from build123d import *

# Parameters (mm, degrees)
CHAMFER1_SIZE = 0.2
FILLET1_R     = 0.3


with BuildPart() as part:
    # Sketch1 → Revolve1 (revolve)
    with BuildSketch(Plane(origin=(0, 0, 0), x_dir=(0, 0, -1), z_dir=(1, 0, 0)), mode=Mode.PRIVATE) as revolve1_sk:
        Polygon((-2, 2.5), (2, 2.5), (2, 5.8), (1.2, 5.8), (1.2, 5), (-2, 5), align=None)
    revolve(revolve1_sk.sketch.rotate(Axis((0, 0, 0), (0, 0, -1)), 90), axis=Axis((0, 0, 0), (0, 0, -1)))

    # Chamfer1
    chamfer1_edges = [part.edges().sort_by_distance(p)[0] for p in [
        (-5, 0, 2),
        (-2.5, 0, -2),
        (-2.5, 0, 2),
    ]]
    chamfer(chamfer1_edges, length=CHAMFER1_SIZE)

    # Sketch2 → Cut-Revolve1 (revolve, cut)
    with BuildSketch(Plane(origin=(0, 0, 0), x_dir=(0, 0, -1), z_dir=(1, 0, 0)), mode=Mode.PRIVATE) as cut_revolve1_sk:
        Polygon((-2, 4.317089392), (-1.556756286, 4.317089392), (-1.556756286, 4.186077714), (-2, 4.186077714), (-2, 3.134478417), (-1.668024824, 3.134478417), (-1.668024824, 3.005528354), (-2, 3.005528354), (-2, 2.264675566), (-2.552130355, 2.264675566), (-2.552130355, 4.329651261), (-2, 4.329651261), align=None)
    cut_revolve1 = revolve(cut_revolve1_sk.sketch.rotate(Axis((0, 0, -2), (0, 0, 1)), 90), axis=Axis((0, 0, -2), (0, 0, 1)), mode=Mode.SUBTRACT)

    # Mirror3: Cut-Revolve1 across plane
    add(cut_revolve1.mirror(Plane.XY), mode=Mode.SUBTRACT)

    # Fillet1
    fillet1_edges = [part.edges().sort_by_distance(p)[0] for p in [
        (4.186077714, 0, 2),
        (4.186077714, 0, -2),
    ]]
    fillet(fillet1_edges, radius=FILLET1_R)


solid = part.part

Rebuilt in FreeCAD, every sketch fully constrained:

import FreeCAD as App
import Part
import Sketcher
from FreeCAD import Vector


def edges_at(feature, points):
    """Names of the edges that pass closest to the given points."""
    edges = feature.Shape.Edges
    near = lambda p: min(range(len(edges)), key=lambda i: edges[i].distToShape(Part.Vertex(*p))[0])
    return sorted({f"Edge{near(p) + 1}" for p in points})

doc = App.newDocument("Part")
params = doc.addObject("Spreadsheet::Sheet", "Params")
for row, (alias, value) in enumerate([
    ("sketch1_height", "4 mm"),
    ("sketch1_width", "3.3 mm"),
    ("sketch1_width2", "0.8 mm"),
    ("revolution_angle", "360 deg"),
    ("chamfer_size", "0.2 mm"),
    ("groove_angle", "360 deg"),
    ("fillet_radius", "0.3 mm"),
], start=1):
    params.set(f"A{row}", alias)
    params.set(f"B{row}", "=" + value)
    params.setAlias(f"B{row}", alias)

body = doc.addObject("PartDesign::Body", "Body")

sketch1 = body.newObject("Sketcher::SketchObject", "Sketch")
sketch1.AttachmentSupport = (doc.getObject("YZ_Plane"), [""])
sketch1.MapMode = "FlatFace"
sketch1.addGeometry(Part.LineSegment(Vector(2.5, 2, 0), Vector(2.5, -2, 0)), False)
sketch1.addGeometry(Part.LineSegment(Vector(2.5, -2, 0), Vector(5.8, -2, 0)), False)
sketch1.addGeometry(Part.LineSegment(Vector(5.8, -2, 0), Vector(5.8, -1.2, 0)), False)
sketch1.addGeometry(Part.LineSegment(Vector(5.8, -1.2, 0), Vector(5, -1.2, 0)), False)
sketch1.addGeometry(Part.LineSegment(Vector(5, -1.2, 0), Vector(5, 2, 0)), False)
sketch1.addGeometry(Part.LineSegment(Vector(5, 2, 0), Vector(2.5, 2, 0)), False)
sketch1.addConstraint(Sketcher.Constraint("Coincident", 0, 2, 1, 1))
sketch1.addConstraint(Sketcher.Constraint("Coincident", 1, 2, 2, 1))
sketch1.addConstraint(Sketcher.Constraint("Coincident", 2, 2, 3, 1))
sketch1.addConstraint(Sketcher.Constraint("Coincident", 3, 2, 4, 1))
sketch1.addConstraint(Sketcher.Constraint("Coincident", 4, 2, 5, 1))
sketch1.addConstraint(Sketcher.Constraint("Coincident", 5, 2, 0, 1))
sketch1.addConstraint(Sketcher.Constraint("Vertical", 0))
sketch1.addConstraint(Sketcher.Constraint("Horizontal", 1))
sketch1.addConstraint(Sketcher.Constraint("Vertical", 2))
sketch1.addConstraint(Sketcher.Constraint("Horizontal", 3))
sketch1.addConstraint(Sketcher.Constraint("Vertical", 4))
sketch1.addConstraint(Sketcher.Constraint("Horizontal", 5))
sketch1.addConstraint(Sketcher.Constraint("Equal", 3, 2))
sketch1.addConstraint(Sketcher.Constraint("DistanceY", 0, 2, 0, 1, 4.0))
sketch1.addConstraint(Sketcher.Constraint("DistanceX", 1, 1, 1, 2, 3.3))
sketch1.addConstraint(Sketcher.Constraint("DistanceX", 3, 2, 3, 1, 0.8))
sketch1.addConstraint(Sketcher.Constraint("DistanceY", 0, 2, -1, 1, 2.0))
sketch1.addConstraint(Sketcher.Constraint("DistanceX", -1, 1, 3, 2, 5.0))
sketch1.setExpression("Constraints[13]", "Params.sketch1_height")
sketch1.setExpression("Constraints[14]", "Params.sketch1_width")
sketch1.setExpression("Constraints[15]", "Params.sketch1_width2")
revolution = body.newObject("PartDesign::Revolution", "Revolution")
revolution.Profile = sketch1
revolution.ReferenceAxis = (sketch1, ["V_Axis"])
revolution.setExpression("Angle", "Params.revolution_angle")
doc.recompute()

chamfer = body.newObject("PartDesign::Chamfer", "Chamfer")
chamfer.Base = (revolution, edges_at(revolution, [(-5, 0, 2), (-2.5, 0, -2), (-2.5, 0, 2)]))
chamfer.setExpression("Size", "Params.chamfer_size")

sketch2 = body.newObject("Sketcher::SketchObject", "Sketch001")
sketch2.AttachmentSupport = (doc.getObject("YZ_Plane"), [""])
sketch2.MapMode = "FlatFace"
sketch2.addGeometry(Part.LineSegment(Vector(4.317, 1.557, 0), Vector(4.317, 2, 0)), False)
sketch2.addGeometry(Part.LineSegment(Vector(4.317, 2, 0), Vector(4.33, 2, 0)), False)
sketch2.addGeometry(Part.LineSegment(Vector(4.33, 2, 0), Vector(4.33, 2.552, 0)), False)
sketch2.addGeometry(Part.LineSegment(Vector(4.33, 2.552, 0), Vector(2.265, 2.552, 0)), False)
sketch2.addGeometry(Part.LineSegment(Vector(2.265, 2.552, 0), Vector(2.265, 2, 0)), False)
sketch2.addGeometry(Part.LineSegment(Vector(2.265, 2, 0), Vector(3.006, 2, 0)), False)
sketch2.addGeometry(Part.LineSegment(Vector(3.006, 2, 0), Vector(3.006, 1.668, 0)), False)
sketch2.addGeometry(Part.LineSegment(Vector(3.006, 1.668, 0), Vector(3.134, 1.668, 0)), False)
sketch2.addGeometry(Part.LineSegment(Vector(3.134, 1.668, 0), Vector(3.134, 2, 0)), False)
sketch2.addGeometry(Part.LineSegment(Vector(3.134, 2, 0), Vector(4.186, 2, 0)), False)
sketch2.addGeometry(Part.LineSegment(Vector(4.186, 2, 0), Vector(4.186, 1.557, 0)), False)
sketch2.addGeometry(Part.LineSegment(Vector(4.186, 1.557, 0), Vector(4.317, 1.557, 0)), False)
sketch2.addConstraint(Sketcher.Constraint("Coincident", 0, 2, 1, 1))
sketch2.addConstraint(Sketcher.Constraint("Coincident", 1, 2, 2, 1))
sketch2.addConstraint(Sketcher.Constraint("Coincident", 2, 2, 3, 1))
sketch2.addConstraint(Sketcher.Constraint("Coincident", 3, 2, 4, 1))
sketch2.addConstraint(Sketcher.Constraint("Coincident", 4, 2, 5, 1))
sketch2.addConstraint(Sketcher.Constraint("Coincident", 5, 2, 6, 1))
sketch2.addConstraint(Sketcher.Constraint("Coincident", 6, 2, 7, 1))
sketch2.addConstraint(Sketcher.Constraint("Coincident", 7, 2, 8, 1))
sketch2.addConstraint(Sketcher.Constraint("Coincident", 8, 2, 9, 1))
sketch2.addConstraint(Sketcher.Constraint("Coincident", 9, 2, 10, 1))
sketch2.addConstraint(Sketcher.Constraint("Coincident", 10, 2, 11, 1))
sketch2.addConstraint(Sketcher.Constraint("Coincident", 11, 2, 0, 1))
sketch2.addConstraint(Sketcher.Constraint("Vertical", 0))
sketch2.addConstraint(Sketcher.Constraint("Horizontal", 1))
sketch2.addConstraint(Sketcher.Constraint("Vertical", 2))
sketch2.addConstraint(Sketcher.Constraint("Horizontal", 3))
sketch2.addConstraint(Sketcher.Constraint("Vertical", 4))
sketch2.addConstraint(Sketcher.Constraint("Horizontal", 5))
sketch2.addConstraint(Sketcher.Constraint("Vertical", 6))
sketch2.addConstraint(Sketcher.Constraint("Horizontal", 7))
sketch2.addConstraint(Sketcher.Constraint("Vertical", 8))
sketch2.addConstraint(Sketcher.Constraint("Horizontal", 9))
sketch2.addConstraint(Sketcher.Constraint("Vertical", 10))
sketch2.addConstraint(Sketcher.Constraint("Horizontal", 11))
sketch2.addConstraint(Sketcher.Constraint("Horizontal", 1, 2, 4, 2))
sketch2.addConstraint(Sketcher.Constraint("Horizontal", 5, 2, 8, 2))
sketch2.addConstraint(Sketcher.Constraint("DistanceY", -1, 1, 0, 2, 2.0))
sketch2.addConstraint(Sketcher.Constraint("DistanceX", 9, 1, 9, 2, 1.051599))
sketch2.addConstraint(Sketcher.Constraint("DistanceX", 1, 1, 1, 2, 0.012562))
sketch2.addConstraint(Sketcher.Constraint("DistanceX", 7, 1, 7, 2, 0.12895))
sketch2.addConstraint(Sketcher.Constraint("DistanceX", 11, 1, 11, 2, 0.131012))
sketch2.addConstraint(Sketcher.Constraint("DistanceY", 2, 1, 2, 2, 0.55213))
sketch2.addConstraint(Sketcher.Constraint("DistanceX", 3, 2, 3, 1, 2.064976))
sketch2.addConstraint(Sketcher.Constraint("DistanceY", 0, 1, 0, 2, 0.443244))
sketch2.addConstraint(Sketcher.Constraint("DistanceY", 6, 2, 6, 1, 0.331975))
sketch2.addConstraint(Sketcher.Constraint("DistanceX", -1, 1, 0, 2, 4.317089))
groove = body.newObject("PartDesign::Groove", "Groove")
groove.Profile = sketch2
groove.ReferenceAxis = (sketch2, ["V_Axis"])
groove.setExpression("Angle", "Params.groove_angle")
doc.recompute()

mirrored = body.newObject("PartDesign::Mirrored", "Mirrored")
mirrored.Originals = [groove]
mirrored.MirrorPlane = (doc.getObject("XY_Plane"), [""])
body.Tip = mirrored
doc.recompute()

fillet = body.newObject("PartDesign::Fillet", "Fillet")
fillet.Base = (mirrored, edges_at(mirrored, [(4.186, 0, 2), (4.186, 0, -2)]))
fillet.setExpression("Radius", "Params.fillet_radius")

doc.recompute()
